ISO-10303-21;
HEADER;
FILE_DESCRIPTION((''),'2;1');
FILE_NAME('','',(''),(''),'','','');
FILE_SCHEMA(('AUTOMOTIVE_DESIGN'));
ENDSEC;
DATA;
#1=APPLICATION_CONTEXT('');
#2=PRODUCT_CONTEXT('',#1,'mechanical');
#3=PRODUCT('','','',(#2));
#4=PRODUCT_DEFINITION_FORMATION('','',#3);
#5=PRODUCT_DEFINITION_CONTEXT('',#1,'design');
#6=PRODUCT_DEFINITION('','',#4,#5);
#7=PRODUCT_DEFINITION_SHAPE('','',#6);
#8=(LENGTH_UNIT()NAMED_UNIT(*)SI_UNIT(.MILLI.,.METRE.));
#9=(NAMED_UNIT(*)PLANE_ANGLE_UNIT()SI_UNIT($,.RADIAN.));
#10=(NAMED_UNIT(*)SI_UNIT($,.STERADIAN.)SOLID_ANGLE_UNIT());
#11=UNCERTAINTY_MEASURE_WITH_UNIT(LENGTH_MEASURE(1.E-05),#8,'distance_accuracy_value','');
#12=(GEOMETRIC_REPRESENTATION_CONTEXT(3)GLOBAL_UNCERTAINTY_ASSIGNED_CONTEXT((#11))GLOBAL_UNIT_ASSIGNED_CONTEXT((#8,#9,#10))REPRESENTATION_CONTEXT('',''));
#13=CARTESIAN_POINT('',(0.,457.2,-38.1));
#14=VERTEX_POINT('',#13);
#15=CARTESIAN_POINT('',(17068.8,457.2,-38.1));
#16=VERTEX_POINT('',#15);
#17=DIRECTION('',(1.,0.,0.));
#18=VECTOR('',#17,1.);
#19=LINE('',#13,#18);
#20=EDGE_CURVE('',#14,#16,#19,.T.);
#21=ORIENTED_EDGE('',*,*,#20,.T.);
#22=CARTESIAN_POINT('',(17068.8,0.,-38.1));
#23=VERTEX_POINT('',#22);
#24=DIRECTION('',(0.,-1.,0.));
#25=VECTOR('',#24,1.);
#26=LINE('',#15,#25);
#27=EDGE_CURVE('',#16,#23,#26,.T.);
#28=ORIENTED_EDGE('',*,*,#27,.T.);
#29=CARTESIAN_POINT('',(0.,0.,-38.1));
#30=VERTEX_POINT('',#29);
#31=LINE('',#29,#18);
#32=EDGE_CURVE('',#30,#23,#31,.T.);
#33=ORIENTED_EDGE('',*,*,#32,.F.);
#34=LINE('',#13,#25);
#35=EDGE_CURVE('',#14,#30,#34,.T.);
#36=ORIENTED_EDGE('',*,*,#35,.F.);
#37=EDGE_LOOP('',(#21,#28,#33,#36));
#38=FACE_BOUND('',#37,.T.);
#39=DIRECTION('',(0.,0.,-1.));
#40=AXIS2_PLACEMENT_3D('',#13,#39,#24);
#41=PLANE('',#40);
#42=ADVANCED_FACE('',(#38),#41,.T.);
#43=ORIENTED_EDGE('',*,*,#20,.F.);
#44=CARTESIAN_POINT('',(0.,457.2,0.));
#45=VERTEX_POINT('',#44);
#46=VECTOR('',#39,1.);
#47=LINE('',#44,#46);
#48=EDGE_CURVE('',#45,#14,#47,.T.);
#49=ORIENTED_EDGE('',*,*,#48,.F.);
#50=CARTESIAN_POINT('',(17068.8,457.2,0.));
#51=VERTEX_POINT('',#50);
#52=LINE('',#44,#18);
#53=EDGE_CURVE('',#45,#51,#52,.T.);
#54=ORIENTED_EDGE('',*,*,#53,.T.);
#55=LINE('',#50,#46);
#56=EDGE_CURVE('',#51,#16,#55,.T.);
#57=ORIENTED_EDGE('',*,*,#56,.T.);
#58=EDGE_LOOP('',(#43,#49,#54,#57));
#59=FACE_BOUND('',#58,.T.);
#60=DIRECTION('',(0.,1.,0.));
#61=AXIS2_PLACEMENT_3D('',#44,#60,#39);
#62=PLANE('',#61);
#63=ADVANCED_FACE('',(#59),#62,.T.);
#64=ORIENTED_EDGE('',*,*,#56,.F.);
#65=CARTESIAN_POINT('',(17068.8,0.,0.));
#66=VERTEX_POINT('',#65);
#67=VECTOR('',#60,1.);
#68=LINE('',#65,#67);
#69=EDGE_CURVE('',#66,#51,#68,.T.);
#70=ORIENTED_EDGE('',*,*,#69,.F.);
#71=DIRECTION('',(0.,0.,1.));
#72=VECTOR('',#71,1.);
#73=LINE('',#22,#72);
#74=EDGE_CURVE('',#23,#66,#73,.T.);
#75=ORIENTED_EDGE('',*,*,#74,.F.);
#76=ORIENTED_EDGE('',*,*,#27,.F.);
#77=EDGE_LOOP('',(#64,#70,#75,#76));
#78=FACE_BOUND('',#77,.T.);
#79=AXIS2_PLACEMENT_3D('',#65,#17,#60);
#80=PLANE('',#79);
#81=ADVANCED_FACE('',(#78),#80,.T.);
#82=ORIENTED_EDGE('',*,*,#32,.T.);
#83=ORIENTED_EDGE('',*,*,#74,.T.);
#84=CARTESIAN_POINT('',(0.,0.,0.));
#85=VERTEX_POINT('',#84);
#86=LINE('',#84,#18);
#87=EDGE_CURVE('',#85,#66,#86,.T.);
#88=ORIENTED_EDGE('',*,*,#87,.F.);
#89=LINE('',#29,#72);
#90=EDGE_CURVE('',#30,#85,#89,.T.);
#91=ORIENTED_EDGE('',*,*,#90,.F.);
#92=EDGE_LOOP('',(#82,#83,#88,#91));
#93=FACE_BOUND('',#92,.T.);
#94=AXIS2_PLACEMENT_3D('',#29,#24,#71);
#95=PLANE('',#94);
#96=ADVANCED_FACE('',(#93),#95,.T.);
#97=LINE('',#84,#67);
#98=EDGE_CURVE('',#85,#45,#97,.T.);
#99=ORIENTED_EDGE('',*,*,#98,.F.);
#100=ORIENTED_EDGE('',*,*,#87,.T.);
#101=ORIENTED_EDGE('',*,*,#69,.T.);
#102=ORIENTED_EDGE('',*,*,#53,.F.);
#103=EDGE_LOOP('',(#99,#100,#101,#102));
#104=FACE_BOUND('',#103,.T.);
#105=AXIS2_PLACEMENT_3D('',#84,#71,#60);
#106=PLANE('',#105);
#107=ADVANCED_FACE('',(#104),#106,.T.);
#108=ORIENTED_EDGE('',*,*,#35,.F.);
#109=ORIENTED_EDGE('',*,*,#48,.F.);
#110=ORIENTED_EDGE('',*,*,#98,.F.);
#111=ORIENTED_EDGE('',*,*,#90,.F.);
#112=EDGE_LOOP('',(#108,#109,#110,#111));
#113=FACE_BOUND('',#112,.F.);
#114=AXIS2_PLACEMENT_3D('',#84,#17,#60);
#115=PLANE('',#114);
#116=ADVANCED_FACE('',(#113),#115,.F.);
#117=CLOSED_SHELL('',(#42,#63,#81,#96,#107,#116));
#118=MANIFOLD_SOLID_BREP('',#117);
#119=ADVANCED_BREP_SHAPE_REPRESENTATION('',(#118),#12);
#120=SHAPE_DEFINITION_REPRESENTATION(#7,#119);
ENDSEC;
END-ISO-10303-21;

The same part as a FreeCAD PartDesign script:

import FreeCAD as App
import Part
import Sketcher
from FreeCAD import Vector
Q = App.Units.Quantity


def add_polygon(sketch, points):
    """Adds a closed chain of lines whose ends are joined by coincident constraints."""
    first, n = sketch.GeometryCount, len(points)
    for a, b in zip(points, points[1:] + points[:1]):
        sketch.addGeometry(Part.LineSegment(App.Vector(*a, 0), App.Vector(*b, 0)), False)
    for i in range(n):
        sketch.addConstraint(Sketcher.Constraint("Coincident", first + i, 2, first + (i + 1) % n, 1))

doc = App.newDocument("Part")
params = doc.addObject("Spreadsheet::Sheet", "Params")
for row, (alias, value) in enumerate([
    ("sketch1_width", "18 in"),
    ("sketch1_height", "1.5 in"),
    ("pad1_length", "672 in"),
], start=1):
    params.set(f"A{row}", alias)
    params.set(f"B{row}", "=" + value)
    params.setAlias(f"B{row}", alias)

body = doc.addObject("PartDesign::Body", "Body")

# Sketch on YZ plane
sketch1 = body.newObject("Sketcher::SketchObject", "Sketch")
sketch1.AttachmentSupport = (doc.getObject("YZ_Plane"), [""])
sketch1.MapMode = "FlatFace"
add_polygon(sketch1, [(457, 0), (0, 0), (0, -38), (457, -38)])  # lines 0-3
sketch1.addConstraint([
    Sketcher.Constraint("Horizontal", 0),
    Sketcher.Constraint("Vertical", 1),
    Sketcher.Constraint("Horizontal", 2),
    Sketcher.Constraint("Vertical", 3),
    Sketcher.Constraint("Coincident", 0, 2, -1, 1),
    Sketcher.Constraint("DistanceX", 0, 2, 0, 1, Q("18 in")),
    Sketcher.Constraint("DistanceY", 1, 2, 1, 1, Q("1.5 in")),
])
sketch1.setExpression("Constraints[9]", "Params.sketch1_width")
sketch1.setExpression("Constraints[10]", "Params.sketch1_height")
pad1 = body.newObject("PartDesign::Pad", "Pad")
pad1.Profile = sketch1
pad1.setExpression("Length", "Params.pad1_length")

doc.recompute()
